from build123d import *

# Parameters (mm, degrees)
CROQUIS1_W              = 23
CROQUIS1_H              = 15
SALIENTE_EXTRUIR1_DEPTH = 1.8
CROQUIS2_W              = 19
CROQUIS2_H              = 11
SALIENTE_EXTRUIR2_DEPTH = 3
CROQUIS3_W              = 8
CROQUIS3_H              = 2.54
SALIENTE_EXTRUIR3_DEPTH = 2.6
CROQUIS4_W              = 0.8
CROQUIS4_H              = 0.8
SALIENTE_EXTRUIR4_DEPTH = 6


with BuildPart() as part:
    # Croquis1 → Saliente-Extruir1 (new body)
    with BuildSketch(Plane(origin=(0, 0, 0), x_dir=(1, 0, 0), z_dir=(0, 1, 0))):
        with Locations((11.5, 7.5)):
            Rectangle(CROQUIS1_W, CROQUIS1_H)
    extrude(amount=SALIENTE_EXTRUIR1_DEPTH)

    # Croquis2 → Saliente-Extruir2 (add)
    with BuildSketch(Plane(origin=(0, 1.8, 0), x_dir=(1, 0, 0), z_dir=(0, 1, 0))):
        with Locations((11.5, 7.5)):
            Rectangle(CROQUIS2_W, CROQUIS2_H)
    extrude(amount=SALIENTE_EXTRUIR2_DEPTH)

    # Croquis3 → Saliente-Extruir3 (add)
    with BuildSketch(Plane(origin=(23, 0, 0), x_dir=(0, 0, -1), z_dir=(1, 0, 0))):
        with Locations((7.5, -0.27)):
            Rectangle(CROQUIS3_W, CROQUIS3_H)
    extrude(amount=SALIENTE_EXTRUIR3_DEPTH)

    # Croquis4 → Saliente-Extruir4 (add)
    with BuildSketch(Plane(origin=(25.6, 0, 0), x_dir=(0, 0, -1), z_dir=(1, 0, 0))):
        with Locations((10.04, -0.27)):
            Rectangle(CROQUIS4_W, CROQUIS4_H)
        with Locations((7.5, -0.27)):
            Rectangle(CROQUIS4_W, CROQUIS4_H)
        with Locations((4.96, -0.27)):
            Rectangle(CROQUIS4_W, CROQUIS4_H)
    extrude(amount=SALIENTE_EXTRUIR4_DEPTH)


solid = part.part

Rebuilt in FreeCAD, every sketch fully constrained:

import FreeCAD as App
import Part
import Sketcher


def add_polygon(sketch, points):
    """Adds a closed chain of lines whose ends are joined by coincident constraints."""
    first, n = sketch.GeometryCount, len(points)
    for a, b in zip(points, points[1:] + points[:1]):
        sketch.addGeometry(Part.LineSegment(App.Vector(*a, 0), App.Vector(*b, 0)), False)
    for i in range(n):
        sketch.addConstraint(Sketcher.Constraint("Coincident", first + i, 2, first + (i + 1) % n, 1))

doc = App.newDocument("Part")
body = doc.addObject("PartDesign::Body", "Body")

sketch1 = body.newObject("Sketcher::SketchObject", "Sketch")
sketch1.AttachmentSupport = (doc.getObject("XZ_Plane"), [""])
sketch1.MapMode = "FlatFace"
add_polygon(sketch1, [(0, -15), (0, 0), (23, 0), (23, -15)])
sketch1.addConstraint(Sketcher.Constraint("Vertical", 0))
sketch1.addConstraint(Sketcher.Constraint("Horizontal", 1))
sketch1.addConstraint(Sketcher.Constraint("Vertical", 2))
sketch1.addConstraint(Sketcher.Constraint("Horizontal", 3))
sketch1.addConstraint(Sketcher.Constraint("Coincident", 0, 2, -1, 1))
sketch1.addConstraint(Sketcher.Constraint("DistanceX", 1, 1, 1, 2, 23.0))
sketch1.addConstraint(Sketcher.Constraint("DistanceY", 0, 1, 0, 2, 15.0))
pad1 = body.newObject("PartDesign::Pad", "Pad")
pad1.Profile = sketch1
pad1.Length = 1.8
pad1.Reversed = True

sketch2 = body.newObject("Sketcher::SketchObject", "Sketch001")
sketch2.AttachmentSupport = (doc.getObject("XZ_Plane"), [""])
sketch2.MapMode = "FlatFace"
sketch2.AttachmentOffset = App.Placement(App.Vector(0, 0, -1.8), App.Rotation())
add_polygon(sketch2, [(2, -13), (2, -2), (21, -2), (21, -13)])
sketch2.addConstraint(Sketcher.Constraint("Vertical", 0))
sketch2.addConstraint(Sketcher.Constraint("Horizontal", 1))
sketch2.addConstraint(Sketcher.Constraint("Vertical", 2))
sketch2.addConstraint(Sketcher.Constraint("Horizontal", 3))
sketch2.addConstraint(Sketcher.Constraint("DistanceX", 1, 1, 1, 2, 19.0))
sketch2.addConstraint(Sketcher.Constraint("DistanceY", 0, 1, 0, 2, 11.0))
sketch2.addConstraint(Sketcher.Constraint("DistanceX", -1, 1, 0, 2, 2.0))
sketch2.addConstraint(Sketcher.Constraint("DistanceY", 0, 2, -1, 1, 2.0))
pad2 = body.newObject("PartDesign::Pad", "Pad001")
pad2.Profile = sketch2
pad2.Length = 3
pad2.Reversed = True

sketch3 = body.newObject("Sketcher::SketchObject", "Sketch002")
sketch3.AttachmentSupport = (doc.getObject("YZ_Plane"), [""])
sketch3.MapMode = "FlatFace"
sketch3.AttachmentOffset = App.Placement(App.Vector(0, 0, 23), App.Rotation())
add_polygon(sketch3, [(1, -3.5), (-1.5, -3.5), (-1.5, -11.5), (1, -11.5)])
sketch3.addConstraint(Sketcher.Constraint("Horizontal", 0))
sketch3.addConstraint(Sketcher.Constraint("Vertical", 1))
sketch3.addConstraint(Sketcher.Constraint("Horizontal", 2))
sketch3.addConstraint(Sketcher.Constraint("Vertical", 3))
sketch3.addConstraint(Sketcher.Constraint("DistanceY", 1, 2, 1, 1, 8.0))
sketch3.addConstraint(Sketcher.Constraint("DistanceX", -1, 1, 2, 2, 1.0))
sketch3.addConstraint(Sketcher.Constraint("DistanceX", 0, 2, 0, 1, 2.54))
sketch3.addConstraint(Sketcher.Constraint("DistanceY", 0, 2, -1, 1, 3.5))
pad3 = body.newObject("PartDesign::Pad", "Pad002")
pad3.Profile = sketch3
pad3.Length = 2.6

sketch4 = body.newObject("Sketcher::SketchObject", "Sketch003")
sketch4.AttachmentSupport = (doc.getObject("YZ_Plane"), [""])
sketch4.MapMode = "FlatFace"
sketch4.AttachmentOffset = App.Placement(App.Vector(0, 0, 25.6), App.Rotation())
add_polygon(sketch4, [(0.1, -9.6), (-0.7, -9.6), (-0.7, -10.4), (0.1, -10.4)])
add_polygon(sketch4, [(0.1, -7.1), (-0.7, -7.1), (-0.7, -7.9), (0.1, -7.9)])
add_polygon(sketch4, [(0.1, -4.6), (-0.7, -4.6), (-0.7, -5.4), (0.1, -5.4)])
sketch4.addConstraint(Sketcher.Constraint("Horizontal", 0))
sketch4.addConstraint(Sketcher.Constraint("Vertical", 1))
sketch4.addConstraint(Sketcher.Constraint("Horizontal", 2))
sketch4.addConstraint(Sketcher.Constraint("Vertical", 3))
sketch4.addConstraint(Sketcher.Constraint("Horizontal", 4))
sketch4.addConstraint(Sketcher.Constraint("Vertical", 5))
sketch4.addConstraint(Sketcher.Constraint("Horizontal", 6))
sketch4.addConstraint(Sketcher.Constraint("Vertical", 7))
sketch4.addConstraint(Sketcher.Constraint("Horizontal", 8))
sketch4.addConstraint(Sketcher.Constraint("Vertical", 9))
sketch4.addConstraint(Sketcher.Constraint("Horizontal", 10))
sketch4.addConstraint(Sketcher.Constraint("Vertical", 11))
sketch4.addConstraint(Sketcher.Constraint("Vertical", 1, 2, 4, 2))
sketch4.addConstraint(Sketcher.Constraint("Vertical", 3, 2, 6, 2))
sketch4.addConstraint(Sketcher.Constraint("Vertical", 5, 2, 8, 2))
sketch4.addConstraint(Sketcher.Constraint("Vertical", 7, 2, 10, 2))
sketch4.addConstraint(Sketcher.Constraint("Equal", 10, 1))
sketch4.addConstraint(Sketcher.Constraint("Equal", 3, 5))
sketch4.addConstraint(Sketcher.Constraint("Equal", 7, 9))
sketch4.addConstraint(Sketcher.Constraint("DistanceX", 0, 2, 0, 1, 0.8))
sketch4.addConstraint(Sketcher.Constraint("DistanceY", 4, 2, -1, 1, 7.1))
sketch4.addConstraint(Sketcher.Constraint("DistanceX", 0, 2, -1, 1, 0.67))
sketch4.addConstraint(Sketcher.Constraint("DistanceY", 0, 2, -1, 1, 9.64))
sketch4.addConstraint(Sketcher.Constraint("DistanceY", 8, 2, -1, 1, 4.56))
pad4 = body.newObject("PartDesign::Pad", "Pad003")
pad4.Profile = sketch4
pad4.Length = 6

doc.recompute()
